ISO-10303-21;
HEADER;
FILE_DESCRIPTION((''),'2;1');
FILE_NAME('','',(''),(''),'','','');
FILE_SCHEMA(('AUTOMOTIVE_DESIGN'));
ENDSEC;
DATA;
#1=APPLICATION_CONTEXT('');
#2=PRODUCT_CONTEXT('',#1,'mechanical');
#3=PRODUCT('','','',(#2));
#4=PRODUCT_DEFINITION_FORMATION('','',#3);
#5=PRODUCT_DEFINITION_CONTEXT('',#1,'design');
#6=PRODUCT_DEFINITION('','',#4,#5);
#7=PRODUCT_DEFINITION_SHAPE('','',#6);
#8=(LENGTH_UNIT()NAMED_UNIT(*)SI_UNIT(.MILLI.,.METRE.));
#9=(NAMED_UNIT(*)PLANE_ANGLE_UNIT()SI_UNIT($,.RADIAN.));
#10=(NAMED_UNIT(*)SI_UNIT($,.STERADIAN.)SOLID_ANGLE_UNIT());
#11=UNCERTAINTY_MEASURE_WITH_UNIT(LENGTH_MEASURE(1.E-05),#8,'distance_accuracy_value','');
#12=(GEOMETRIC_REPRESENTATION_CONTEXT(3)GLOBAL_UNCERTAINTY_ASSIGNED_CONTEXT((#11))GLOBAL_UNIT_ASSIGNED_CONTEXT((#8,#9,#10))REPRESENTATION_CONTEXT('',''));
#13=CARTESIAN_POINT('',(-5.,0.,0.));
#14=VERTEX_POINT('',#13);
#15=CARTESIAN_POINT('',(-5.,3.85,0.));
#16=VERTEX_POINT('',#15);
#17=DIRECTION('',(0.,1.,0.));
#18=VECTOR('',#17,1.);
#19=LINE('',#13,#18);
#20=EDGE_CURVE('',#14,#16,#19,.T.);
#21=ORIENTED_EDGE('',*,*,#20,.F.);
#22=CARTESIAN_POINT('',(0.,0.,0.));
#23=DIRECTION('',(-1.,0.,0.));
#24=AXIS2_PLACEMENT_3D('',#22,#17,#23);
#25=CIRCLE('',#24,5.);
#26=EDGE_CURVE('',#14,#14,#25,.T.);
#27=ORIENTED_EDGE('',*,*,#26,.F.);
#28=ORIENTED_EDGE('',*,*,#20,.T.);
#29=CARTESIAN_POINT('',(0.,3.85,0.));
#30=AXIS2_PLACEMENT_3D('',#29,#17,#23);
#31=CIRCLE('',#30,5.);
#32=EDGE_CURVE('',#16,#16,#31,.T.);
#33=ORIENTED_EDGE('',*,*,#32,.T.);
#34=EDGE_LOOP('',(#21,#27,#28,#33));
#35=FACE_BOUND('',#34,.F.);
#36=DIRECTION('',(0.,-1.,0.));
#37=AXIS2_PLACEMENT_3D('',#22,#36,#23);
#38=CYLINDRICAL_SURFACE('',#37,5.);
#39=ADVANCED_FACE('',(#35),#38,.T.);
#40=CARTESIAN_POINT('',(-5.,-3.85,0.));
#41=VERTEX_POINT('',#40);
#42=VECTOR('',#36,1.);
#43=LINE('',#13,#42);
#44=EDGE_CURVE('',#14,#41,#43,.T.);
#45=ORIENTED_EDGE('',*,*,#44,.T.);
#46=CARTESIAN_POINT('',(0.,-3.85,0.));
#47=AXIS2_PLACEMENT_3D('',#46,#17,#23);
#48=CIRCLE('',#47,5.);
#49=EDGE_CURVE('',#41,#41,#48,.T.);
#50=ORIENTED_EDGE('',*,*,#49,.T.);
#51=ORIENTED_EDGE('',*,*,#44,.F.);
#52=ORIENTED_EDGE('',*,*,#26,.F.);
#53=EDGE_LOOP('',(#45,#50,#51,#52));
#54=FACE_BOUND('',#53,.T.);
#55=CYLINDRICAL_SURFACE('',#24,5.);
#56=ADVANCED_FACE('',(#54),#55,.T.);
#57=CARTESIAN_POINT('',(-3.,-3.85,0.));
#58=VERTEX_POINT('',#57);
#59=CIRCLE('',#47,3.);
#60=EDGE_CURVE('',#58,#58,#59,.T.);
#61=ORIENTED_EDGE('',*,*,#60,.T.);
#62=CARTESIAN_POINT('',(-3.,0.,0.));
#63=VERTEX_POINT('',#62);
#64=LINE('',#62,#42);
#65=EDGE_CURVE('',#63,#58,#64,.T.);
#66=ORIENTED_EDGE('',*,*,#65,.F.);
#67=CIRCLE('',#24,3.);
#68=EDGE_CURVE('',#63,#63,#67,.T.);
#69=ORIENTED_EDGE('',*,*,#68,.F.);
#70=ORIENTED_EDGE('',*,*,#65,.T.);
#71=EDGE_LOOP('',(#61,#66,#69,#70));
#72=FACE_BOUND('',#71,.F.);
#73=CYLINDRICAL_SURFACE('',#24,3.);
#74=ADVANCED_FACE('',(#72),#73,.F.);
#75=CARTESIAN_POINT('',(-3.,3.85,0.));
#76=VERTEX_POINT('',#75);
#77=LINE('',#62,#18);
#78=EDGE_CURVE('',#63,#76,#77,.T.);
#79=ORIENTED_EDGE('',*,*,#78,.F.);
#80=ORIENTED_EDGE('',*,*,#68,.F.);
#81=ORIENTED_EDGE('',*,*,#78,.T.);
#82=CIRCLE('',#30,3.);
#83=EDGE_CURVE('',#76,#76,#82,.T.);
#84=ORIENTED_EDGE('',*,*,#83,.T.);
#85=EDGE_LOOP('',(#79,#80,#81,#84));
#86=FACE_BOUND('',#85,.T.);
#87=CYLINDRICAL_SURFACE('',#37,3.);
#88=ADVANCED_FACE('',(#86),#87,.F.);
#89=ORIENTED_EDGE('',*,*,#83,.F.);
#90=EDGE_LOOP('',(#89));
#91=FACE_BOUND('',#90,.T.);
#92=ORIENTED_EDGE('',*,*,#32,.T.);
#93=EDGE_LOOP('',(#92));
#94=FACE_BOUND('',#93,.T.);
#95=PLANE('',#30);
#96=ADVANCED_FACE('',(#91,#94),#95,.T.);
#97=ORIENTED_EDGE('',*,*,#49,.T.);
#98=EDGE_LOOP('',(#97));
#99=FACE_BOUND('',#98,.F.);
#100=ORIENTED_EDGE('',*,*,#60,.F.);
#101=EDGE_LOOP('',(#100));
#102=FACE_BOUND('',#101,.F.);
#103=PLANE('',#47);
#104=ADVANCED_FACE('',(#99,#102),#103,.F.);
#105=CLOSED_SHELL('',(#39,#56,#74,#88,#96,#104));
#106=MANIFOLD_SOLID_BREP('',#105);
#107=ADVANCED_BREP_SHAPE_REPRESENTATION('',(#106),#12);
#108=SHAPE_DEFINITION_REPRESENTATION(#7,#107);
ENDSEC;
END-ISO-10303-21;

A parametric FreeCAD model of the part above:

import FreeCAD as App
import Part
import Sketcher

V = App.Vector
Q = App.Units.Quantity

doc = App.newDocument("Part")
body = doc.addObject("PartDesign::Body", "Body")

sketch1 = body.newObject("Sketcher::SketchObject", "Sketch")
sketch1.AttachmentSupport = (doc.getObject("XZ_Plane"), [""])
sketch1.MapMode = "FlatFace"
sketch1.addGeometry([
    Part.Circle(V(0, 0, 0), V(0, 0, 1), 5),
    Part.Circle(V(0, 0, 0), V(0, 0, 1), 3),
], False)
sketch1.addConstraint([
    Sketcher.Constraint("Coincident", 0, 3, -1, 1),
    Sketcher.Constraint("Coincident", 1, 3, -1, 1),
    Sketcher.Constraint("Diameter", 1, Q("6 mm")),
    Sketcher.Constraint("Diameter", 0, Q("10 mm")),
])
pad1 = body.newObject("PartDesign::Pad", "Pad")
pad1.Profile = sketch1
pad1.Length = 7.7
pad1.Midplane = True

doc.recompute()
